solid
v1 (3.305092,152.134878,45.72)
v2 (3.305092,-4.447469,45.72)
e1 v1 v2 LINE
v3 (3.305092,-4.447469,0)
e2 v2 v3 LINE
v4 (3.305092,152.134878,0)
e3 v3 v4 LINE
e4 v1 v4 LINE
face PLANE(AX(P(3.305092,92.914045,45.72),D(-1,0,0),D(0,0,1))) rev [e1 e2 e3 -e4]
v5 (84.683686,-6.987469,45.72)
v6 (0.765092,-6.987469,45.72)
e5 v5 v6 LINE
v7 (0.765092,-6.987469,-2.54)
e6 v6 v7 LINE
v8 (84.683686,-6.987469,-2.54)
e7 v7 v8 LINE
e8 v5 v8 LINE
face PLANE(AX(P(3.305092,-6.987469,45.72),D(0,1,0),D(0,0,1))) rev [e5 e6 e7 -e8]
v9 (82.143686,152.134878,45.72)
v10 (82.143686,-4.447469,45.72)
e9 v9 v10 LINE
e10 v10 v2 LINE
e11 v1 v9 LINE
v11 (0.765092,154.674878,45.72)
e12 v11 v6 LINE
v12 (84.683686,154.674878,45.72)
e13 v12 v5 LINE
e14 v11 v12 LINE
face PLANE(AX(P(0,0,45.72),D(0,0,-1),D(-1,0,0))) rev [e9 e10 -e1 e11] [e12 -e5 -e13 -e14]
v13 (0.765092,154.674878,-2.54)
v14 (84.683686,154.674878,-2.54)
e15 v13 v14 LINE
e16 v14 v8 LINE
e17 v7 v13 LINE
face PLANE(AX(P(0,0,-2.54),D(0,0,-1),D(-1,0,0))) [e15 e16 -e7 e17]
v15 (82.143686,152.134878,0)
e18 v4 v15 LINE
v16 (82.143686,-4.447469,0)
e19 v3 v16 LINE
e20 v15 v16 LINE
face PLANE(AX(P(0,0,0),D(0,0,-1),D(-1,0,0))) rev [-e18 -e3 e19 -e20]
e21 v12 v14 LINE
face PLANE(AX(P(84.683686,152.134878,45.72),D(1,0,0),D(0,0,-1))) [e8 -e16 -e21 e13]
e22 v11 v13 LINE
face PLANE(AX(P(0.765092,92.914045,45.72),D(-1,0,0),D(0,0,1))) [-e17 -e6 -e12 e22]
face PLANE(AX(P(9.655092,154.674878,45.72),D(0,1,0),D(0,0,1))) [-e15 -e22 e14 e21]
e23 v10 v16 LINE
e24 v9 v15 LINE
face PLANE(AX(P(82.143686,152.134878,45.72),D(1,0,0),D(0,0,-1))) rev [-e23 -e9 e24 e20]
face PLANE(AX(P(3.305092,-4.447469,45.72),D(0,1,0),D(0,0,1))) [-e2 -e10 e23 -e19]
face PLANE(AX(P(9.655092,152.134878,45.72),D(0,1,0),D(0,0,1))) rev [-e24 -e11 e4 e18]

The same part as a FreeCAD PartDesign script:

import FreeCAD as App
import Part
import Sketcher
from FreeCAD import Vector
Q = App.Units.Quantity


def faces_at(feature, points):
    """Names of the faces that lie closest to the given points."""
    faces = feature.Shape.Faces
    near = lambda p: min(range(len(faces)), key=lambda i: faces[i].distToShape(Part.Vertex(*p))[0])
    return sorted({f"Face{near(p) + 1}" for p in points})


def add_polygon(sketch, points):
    """Adds a closed chain of lines whose ends are joined by coincident constraints."""
    first, n = sketch.GeometryCount, len(points)
    for a, b in zip(points, points[1:] + points[:1]):
        sketch.addGeometry(Part.LineSegment(App.Vector(*a, 0), App.Vector(*b, 0)), False)
    for i in range(n):
        sketch.addConstraint(Sketcher.Constraint("Coincident", first + i, 2, first + (i + 1) % n, 1))

doc = App.newDocument("Part")
body = doc.addObject("PartDesign::Body", "Body")

sketch1 = body.newObject("Sketcher::SketchObject", "Sketch")
sketch1.AttachmentSupport = (doc.getObject("XY_Plane"), [""])
sketch1.MapMode = "FlatFace"
add_polygon(sketch1, [(82, 152), (3, 152), (3, -4), (82, -4)])
sketch1.addConstraint([
    Sketcher.Constraint("Horizontal", 0),
    Sketcher.Constraint("Vertical", 1),
    Sketcher.Constraint("Horizontal", 2),
    Sketcher.Constraint("Vertical", 3),
    Sketcher.Constraint("DistanceX", 0, 2, 0, 1, Q("78.838594 mm")),
    Sketcher.Constraint("DistanceY", 1, 2, 1, 1, Q("156.582347 mm")),
    Sketcher.Constraint("DistanceX", -1, 1, 0, 2, Q("3.305092 mm")),
    Sketcher.Constraint("DistanceY", 1, 2, -1, 1, Q("4.447469 mm")),
])
pad1 = body.newObject("PartDesign::Pad", "Pad")
pad1.Profile = sketch1
pad1.Length = Q("1.8 in")
doc.recompute()

thickness = body.newObject("PartDesign::Thickness", "Thickness")
thickness.Base = (pad1, faces_at(pad1, [(42.724, 73.844, 45.72)]))
thickness.Value = Q("0.1 in")
thickness.Reversed = False
thickness.Join = "Intersection"

doc.recompute()
